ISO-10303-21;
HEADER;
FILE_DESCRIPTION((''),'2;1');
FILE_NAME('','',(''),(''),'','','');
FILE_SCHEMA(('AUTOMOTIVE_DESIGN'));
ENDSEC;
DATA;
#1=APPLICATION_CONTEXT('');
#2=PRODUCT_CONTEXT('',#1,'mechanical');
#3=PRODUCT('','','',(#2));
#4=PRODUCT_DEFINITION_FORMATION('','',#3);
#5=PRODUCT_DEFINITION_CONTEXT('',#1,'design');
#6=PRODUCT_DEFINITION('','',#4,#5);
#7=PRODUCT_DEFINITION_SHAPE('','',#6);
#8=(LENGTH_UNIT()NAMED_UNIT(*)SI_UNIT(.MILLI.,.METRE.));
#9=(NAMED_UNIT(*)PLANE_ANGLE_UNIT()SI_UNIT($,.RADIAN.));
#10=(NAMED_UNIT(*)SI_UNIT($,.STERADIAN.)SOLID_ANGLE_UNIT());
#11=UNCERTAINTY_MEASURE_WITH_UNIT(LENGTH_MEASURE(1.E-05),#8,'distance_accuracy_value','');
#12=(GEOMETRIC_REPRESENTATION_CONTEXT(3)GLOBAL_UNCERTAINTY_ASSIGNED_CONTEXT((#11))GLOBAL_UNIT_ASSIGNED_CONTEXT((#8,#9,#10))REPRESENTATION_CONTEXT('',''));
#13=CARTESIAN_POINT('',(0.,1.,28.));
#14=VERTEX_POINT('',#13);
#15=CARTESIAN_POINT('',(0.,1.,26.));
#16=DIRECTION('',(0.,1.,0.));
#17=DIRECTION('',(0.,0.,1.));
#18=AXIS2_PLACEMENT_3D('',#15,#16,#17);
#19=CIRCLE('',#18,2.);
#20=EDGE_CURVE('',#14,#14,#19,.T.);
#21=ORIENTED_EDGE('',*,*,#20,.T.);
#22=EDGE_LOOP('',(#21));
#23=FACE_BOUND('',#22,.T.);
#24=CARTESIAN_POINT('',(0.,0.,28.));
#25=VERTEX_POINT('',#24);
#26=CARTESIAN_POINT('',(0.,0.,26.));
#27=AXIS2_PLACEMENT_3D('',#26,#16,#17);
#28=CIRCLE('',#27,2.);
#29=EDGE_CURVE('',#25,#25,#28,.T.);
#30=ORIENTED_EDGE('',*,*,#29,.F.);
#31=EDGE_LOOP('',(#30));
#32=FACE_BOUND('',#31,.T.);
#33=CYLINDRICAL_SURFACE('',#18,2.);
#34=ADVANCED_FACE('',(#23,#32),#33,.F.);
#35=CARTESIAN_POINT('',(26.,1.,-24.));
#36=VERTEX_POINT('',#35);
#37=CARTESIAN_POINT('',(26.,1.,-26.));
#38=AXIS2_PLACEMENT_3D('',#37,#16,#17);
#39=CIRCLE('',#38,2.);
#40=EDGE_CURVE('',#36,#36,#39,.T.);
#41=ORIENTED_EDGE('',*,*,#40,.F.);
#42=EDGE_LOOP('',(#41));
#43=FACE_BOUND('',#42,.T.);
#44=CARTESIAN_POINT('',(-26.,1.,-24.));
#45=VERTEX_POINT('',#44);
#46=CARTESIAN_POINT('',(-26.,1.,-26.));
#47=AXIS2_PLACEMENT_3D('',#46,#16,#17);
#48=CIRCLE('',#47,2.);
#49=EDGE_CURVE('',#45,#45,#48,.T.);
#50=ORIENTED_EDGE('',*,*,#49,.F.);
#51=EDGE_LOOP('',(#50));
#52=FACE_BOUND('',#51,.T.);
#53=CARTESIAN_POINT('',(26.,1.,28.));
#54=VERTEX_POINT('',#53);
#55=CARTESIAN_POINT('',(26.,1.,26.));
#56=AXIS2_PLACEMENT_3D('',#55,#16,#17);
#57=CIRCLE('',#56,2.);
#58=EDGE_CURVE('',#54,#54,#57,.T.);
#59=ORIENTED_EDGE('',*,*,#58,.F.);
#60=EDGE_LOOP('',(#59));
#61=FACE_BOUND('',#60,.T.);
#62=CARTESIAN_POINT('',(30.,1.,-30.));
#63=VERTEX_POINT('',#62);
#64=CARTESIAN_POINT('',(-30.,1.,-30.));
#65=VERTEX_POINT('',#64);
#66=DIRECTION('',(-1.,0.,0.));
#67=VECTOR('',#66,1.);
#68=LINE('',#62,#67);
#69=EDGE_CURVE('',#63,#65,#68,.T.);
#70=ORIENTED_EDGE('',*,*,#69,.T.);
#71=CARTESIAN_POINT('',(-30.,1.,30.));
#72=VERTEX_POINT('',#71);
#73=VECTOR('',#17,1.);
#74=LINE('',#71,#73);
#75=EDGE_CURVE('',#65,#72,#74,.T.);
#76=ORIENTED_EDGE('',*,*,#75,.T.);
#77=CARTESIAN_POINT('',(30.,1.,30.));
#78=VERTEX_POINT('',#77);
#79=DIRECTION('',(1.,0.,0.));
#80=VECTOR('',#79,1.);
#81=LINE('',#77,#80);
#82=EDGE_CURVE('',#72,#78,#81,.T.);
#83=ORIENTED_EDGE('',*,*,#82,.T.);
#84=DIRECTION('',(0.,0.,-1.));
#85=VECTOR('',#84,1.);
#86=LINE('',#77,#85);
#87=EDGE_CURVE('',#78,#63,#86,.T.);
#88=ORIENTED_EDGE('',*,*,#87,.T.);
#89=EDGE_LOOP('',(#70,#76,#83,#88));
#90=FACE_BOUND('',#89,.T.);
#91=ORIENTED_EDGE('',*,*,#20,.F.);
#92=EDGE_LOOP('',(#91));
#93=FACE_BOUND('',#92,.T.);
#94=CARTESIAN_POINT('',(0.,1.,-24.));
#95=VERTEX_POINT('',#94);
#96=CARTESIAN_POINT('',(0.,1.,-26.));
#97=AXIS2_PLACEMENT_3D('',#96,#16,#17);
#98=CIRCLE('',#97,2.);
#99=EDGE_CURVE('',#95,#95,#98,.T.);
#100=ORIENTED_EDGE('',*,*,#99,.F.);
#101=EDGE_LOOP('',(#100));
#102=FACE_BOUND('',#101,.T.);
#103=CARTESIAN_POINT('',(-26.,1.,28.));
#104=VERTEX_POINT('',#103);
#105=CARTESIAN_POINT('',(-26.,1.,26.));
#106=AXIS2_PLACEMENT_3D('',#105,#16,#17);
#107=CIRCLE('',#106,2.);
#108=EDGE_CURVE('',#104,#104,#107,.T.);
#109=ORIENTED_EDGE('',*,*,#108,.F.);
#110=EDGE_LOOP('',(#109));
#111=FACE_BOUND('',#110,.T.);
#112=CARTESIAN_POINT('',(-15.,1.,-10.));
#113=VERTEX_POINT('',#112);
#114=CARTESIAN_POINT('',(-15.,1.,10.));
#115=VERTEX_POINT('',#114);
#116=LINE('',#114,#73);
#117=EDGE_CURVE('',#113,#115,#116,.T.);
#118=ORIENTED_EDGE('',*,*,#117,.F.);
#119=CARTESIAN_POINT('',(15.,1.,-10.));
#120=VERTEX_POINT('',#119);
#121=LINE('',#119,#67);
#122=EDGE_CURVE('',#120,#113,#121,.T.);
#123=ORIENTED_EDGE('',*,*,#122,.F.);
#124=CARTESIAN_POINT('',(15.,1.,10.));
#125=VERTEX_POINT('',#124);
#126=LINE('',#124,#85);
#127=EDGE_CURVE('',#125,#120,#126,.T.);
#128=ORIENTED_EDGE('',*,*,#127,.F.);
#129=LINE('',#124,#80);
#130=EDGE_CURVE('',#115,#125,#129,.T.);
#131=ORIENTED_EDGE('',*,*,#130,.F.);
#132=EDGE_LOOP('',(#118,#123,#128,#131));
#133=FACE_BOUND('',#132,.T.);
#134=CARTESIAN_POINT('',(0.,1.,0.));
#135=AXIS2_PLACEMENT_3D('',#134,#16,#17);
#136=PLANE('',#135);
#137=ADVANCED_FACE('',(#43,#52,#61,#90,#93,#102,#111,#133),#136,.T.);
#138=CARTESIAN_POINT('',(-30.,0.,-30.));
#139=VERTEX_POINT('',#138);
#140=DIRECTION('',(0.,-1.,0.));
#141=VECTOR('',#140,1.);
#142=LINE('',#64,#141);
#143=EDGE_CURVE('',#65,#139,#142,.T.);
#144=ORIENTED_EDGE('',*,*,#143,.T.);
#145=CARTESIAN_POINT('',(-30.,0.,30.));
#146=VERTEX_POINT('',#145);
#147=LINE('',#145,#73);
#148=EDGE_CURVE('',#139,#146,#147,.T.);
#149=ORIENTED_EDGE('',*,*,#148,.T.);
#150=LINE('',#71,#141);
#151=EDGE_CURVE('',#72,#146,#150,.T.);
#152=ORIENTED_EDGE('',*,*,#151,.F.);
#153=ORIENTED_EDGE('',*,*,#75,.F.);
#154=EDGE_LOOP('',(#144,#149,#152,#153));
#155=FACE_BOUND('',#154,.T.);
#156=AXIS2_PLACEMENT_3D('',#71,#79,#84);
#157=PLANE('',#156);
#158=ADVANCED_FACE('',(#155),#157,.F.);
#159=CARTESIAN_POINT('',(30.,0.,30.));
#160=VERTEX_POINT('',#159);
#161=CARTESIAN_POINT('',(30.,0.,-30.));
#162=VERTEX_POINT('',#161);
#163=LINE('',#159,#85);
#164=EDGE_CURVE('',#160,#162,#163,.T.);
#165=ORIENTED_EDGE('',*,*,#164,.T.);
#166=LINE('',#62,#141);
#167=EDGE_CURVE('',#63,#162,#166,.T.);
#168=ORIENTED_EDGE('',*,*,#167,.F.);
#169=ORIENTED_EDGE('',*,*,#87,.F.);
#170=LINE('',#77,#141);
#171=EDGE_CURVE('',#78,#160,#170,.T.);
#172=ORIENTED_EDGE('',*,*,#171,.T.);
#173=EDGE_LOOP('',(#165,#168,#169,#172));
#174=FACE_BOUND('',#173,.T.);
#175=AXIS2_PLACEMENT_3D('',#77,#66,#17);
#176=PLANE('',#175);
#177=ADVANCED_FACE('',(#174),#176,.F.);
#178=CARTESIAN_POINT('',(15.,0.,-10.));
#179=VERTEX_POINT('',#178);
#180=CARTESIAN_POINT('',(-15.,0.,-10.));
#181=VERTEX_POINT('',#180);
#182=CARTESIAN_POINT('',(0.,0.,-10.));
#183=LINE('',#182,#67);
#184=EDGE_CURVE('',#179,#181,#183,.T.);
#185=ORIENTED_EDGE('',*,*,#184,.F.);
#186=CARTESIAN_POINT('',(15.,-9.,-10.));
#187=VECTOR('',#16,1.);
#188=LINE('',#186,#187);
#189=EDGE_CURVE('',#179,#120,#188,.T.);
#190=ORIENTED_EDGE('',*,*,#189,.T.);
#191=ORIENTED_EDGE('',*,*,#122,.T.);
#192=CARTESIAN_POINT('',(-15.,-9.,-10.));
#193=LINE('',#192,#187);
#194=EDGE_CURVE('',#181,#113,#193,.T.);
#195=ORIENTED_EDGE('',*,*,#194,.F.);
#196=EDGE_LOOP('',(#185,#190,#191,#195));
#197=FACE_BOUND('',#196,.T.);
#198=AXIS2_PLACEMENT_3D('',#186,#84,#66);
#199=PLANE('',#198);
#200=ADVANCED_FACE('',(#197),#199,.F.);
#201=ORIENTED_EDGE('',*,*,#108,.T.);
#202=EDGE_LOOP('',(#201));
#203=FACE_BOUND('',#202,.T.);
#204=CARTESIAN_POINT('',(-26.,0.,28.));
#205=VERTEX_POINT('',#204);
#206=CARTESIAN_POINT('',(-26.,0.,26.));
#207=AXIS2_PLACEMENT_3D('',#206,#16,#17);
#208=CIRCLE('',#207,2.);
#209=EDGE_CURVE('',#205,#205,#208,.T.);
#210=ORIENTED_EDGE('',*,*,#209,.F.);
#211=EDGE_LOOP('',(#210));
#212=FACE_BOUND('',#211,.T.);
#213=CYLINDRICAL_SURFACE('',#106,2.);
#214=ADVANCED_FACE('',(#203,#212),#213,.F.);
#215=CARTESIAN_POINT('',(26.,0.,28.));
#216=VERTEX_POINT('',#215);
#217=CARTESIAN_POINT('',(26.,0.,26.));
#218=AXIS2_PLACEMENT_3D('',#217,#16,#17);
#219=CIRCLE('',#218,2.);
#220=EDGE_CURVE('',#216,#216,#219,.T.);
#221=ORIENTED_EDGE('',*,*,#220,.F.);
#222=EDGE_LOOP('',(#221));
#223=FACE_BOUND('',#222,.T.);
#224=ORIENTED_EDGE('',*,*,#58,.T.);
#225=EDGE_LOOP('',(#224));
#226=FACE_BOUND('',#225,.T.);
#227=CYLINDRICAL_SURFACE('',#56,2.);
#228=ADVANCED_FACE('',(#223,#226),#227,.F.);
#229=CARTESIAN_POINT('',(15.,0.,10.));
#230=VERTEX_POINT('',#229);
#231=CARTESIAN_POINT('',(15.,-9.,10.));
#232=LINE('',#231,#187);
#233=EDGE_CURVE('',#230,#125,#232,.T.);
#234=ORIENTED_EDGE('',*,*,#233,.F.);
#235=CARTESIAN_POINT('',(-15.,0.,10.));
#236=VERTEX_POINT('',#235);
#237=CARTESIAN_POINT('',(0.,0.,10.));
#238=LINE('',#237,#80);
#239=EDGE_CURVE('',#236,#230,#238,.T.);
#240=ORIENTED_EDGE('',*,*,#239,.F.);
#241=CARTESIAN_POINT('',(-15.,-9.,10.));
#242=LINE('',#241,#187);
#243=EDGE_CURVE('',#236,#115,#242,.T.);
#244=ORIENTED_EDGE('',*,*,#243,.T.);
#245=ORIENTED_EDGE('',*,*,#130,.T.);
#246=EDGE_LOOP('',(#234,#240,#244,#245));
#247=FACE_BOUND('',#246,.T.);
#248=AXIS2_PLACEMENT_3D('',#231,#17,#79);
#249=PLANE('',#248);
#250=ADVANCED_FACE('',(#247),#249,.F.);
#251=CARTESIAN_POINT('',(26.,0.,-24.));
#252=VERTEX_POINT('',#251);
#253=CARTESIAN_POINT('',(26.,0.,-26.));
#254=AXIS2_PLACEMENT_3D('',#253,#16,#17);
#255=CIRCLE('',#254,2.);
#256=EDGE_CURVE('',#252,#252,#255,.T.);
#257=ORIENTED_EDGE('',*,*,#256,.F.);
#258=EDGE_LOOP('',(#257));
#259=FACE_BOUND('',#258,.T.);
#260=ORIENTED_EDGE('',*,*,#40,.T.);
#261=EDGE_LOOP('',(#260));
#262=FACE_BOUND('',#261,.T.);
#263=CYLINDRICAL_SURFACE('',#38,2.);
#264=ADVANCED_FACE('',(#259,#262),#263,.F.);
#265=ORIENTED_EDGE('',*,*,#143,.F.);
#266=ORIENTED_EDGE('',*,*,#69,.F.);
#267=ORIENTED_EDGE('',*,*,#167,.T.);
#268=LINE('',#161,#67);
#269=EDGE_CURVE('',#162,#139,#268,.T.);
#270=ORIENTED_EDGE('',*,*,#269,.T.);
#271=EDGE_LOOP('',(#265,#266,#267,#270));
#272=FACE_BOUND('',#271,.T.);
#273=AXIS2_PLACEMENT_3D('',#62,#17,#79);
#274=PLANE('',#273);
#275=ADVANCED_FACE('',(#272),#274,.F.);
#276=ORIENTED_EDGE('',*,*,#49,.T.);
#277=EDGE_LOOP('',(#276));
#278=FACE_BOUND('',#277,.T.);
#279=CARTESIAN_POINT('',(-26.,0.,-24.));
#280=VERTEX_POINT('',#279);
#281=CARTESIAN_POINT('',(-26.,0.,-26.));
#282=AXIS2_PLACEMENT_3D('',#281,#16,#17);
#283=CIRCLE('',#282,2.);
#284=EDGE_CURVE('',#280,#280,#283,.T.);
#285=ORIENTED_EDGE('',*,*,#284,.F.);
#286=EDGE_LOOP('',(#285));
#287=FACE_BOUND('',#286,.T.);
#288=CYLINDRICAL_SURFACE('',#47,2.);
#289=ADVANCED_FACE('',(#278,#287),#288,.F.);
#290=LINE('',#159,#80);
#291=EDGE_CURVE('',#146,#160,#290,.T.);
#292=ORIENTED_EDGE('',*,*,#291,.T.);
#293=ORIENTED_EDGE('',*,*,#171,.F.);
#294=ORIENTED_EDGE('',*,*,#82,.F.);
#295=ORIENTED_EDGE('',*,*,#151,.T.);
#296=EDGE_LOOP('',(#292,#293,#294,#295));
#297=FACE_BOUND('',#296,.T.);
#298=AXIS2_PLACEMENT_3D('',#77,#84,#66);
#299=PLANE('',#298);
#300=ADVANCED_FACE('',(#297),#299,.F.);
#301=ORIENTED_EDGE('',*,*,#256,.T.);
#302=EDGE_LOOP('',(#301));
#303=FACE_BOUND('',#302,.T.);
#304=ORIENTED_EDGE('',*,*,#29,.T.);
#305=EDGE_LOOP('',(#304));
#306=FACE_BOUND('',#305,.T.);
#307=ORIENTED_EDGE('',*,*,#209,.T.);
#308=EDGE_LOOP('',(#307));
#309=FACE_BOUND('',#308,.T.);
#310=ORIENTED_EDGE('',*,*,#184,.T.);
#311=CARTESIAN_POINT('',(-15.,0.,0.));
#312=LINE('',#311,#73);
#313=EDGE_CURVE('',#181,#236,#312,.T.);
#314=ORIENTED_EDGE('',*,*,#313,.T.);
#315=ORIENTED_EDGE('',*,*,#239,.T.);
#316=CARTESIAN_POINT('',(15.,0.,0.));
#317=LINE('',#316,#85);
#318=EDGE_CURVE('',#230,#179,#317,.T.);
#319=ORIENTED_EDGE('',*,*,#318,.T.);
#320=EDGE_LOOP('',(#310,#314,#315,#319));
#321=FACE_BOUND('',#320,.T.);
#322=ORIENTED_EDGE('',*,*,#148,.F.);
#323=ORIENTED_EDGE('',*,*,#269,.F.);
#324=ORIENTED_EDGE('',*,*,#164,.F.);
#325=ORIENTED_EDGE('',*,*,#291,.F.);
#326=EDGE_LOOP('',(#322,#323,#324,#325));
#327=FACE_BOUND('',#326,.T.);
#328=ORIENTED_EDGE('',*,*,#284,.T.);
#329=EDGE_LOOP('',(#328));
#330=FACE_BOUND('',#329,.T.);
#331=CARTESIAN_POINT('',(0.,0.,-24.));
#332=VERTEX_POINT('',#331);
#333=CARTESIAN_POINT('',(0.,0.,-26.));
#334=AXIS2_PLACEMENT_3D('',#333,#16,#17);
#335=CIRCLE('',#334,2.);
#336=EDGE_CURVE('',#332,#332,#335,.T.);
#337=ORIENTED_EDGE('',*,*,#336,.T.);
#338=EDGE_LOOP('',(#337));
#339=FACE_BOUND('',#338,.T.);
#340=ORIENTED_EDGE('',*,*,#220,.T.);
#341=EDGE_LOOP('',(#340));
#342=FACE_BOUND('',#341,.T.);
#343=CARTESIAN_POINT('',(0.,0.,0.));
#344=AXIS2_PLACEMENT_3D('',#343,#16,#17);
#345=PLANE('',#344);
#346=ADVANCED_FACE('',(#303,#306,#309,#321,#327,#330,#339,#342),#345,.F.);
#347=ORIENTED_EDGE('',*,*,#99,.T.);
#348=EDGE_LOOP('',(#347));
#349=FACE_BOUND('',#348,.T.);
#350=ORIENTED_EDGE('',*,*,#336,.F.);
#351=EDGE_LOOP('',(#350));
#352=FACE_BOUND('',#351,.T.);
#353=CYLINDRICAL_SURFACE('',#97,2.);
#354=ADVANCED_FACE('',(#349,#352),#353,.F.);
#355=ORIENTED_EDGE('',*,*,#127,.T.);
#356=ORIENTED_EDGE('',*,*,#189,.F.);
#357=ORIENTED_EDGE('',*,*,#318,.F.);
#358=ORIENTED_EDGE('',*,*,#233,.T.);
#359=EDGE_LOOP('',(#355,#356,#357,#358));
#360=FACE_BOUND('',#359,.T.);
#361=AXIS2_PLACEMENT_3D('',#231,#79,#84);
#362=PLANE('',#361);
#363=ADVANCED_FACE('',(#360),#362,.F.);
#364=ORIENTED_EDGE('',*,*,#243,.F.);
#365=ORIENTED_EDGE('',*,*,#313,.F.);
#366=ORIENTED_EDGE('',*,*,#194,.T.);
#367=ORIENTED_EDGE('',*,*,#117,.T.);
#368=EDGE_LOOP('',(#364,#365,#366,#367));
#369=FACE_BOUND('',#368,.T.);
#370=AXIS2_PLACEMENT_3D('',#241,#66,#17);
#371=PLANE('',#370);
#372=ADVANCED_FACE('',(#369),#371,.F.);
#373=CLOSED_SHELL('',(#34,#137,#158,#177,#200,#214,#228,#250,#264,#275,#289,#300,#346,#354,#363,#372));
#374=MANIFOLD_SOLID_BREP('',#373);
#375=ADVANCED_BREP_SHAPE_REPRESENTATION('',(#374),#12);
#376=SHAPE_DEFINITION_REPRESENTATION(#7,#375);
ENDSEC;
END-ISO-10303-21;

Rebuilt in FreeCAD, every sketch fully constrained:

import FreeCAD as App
import Part
import Sketcher


def add_polygon(sketch, points):
    """Adds a closed chain of lines whose ends are joined by coincident constraints."""
    first, n = sketch.GeometryCount, len(points)
    for a, b in zip(points, points[1:] + points[:1]):
        sketch.addGeometry(Part.LineSegment(App.Vector(*a, 0), App.Vector(*b, 0)), False)
    for i in range(n):
        sketch.addConstraint(Sketcher.Constraint("Coincident", first + i, 2, first + (i + 1) % n, 1))

doc = App.newDocument("Part")
params = doc.addObject("Spreadsheet::Sheet", "Params")
for row, (alias, value) in enumerate([
    ("sketch1_width", "60 mm"),
    ("pad1_length", "1 mm"),
    ("sketch2_diameter", "4 mm"),
    ("hole_diameter", "4 mm"),
    ("hole_depth", "1 mm"),
    ("sketch3_width", "30 mm"),
    ("sketch3_height", "20 mm"),
    ("pocket1_length", "10 mm"),
], start=1):
    params.set(f"A{row}", alias)
    params.set(f"B{row}", "=" + value)
    params.setAlias(f"B{row}", alias)

body = doc.addObject("PartDesign::Body", "Body")

# Sketch on XZ plane
sketch1 = doc.addObject("Sketcher::SketchObject", "Sketch")
body.addObject(sketch1)
sketch1.AttachmentSupport = (doc.XZ_Plane, [""])
sketch1.MapMode = "FlatFace"
add_polygon(sketch1, [(-30, -30), (-30, 30), (30, 30), (30, -30)])  # lines 0-3
sketch1.addConstraint([
    Sketcher.Constraint("Vertical", 0),
    Sketcher.Constraint("Horizontal", 1),
    Sketcher.Constraint("Vertical", 2),
    Sketcher.Constraint("Horizontal", 3),
    Sketcher.Constraint("Symmetric", 0, 2, 2, 2, -1, 1),
    Sketcher.Constraint("Equal", 3, 0),
    Sketcher.Constraint("DistanceX", 1, 1, 1, 2, 60.0),
])
sketch1.setExpression("Constraints[10]", "Params.sketch1_width")
pad1 = doc.addObject("PartDesign::Pad", "Pad")
body.addObject(pad1)
pad1.Profile = sketch1
pad1.setExpression("Length", "Params.pad1_length")
pad1.Reversed = True

# Sketch on XZ plane
sketch2 = doc.addObject("Sketcher::SketchObject", "Sketch001")
body.addObject(sketch2)
sketch2.AttachmentSupport = (doc.XZ_Plane, [""])
sketch2.MapMode = "FlatFace"
sketch2.AttachmentOffset = App.Placement(App.Vector(0, 0, -1), App.Rotation())
sketch2.addGeometry([
    Part.Circle(App.Vector(26, -26, 0), App.Vector(0, 0, 1), 2),  # 0
    Part.Circle(App.Vector(0, -26, 0), App.Vector(0, 0, 1), 2),  # 1
    Part.Circle(App.Vector(-26, -26, 0), App.Vector(0, 0, 1), 2),  # 2
    Part.Circle(App.Vector(0, 26, 0), App.Vector(0, 0, 1), 2),  # 3
    Part.Circle(App.Vector(26, 26, 0), App.Vector(0, 0, 1), 2),  # 4
    Part.Circle(App.Vector(-26, 26, 0), App.Vector(0, 0, 1), 2),  # 5
], False)
sketch2.addConstraint([
    Sketcher.Constraint("Equal", 0, 1),
    Sketcher.Constraint("Equal", 1, 2),
    Sketcher.Constraint("Equal", 2, 3),
    Sketcher.Constraint("Equal", 3, 4),
    Sketcher.Constraint("Equal", 4, 5),
    Sketcher.Constraint("Symmetric", 1, 3, 3, 3, -1, 1),
    Sketcher.Constraint("Symmetric", 2, 3, 4, 3, -1, 1),
    Sketcher.Constraint("Symmetric", 0, 3, 5, 3, -1, 1),
    Sketcher.Constraint("Symmetric", 0, 3, 2, 3, -2),
    Sketcher.Constraint("PointOnObject", 1, 3, -2),
    Sketcher.Constraint("Horizontal", 0, 3, 1, 3),
    Sketcher.Constraint("Diameter", 0, 4.0),
    Sketcher.Constraint("DistanceX", -1, 1, 0, 3, 26.0),
    Sketcher.Constraint("DistanceY", 0, 3, -1, 1, 26.0),
])
sketch2.setExpression("Constraints[11]", "Params.sketch2_diameter")
doc.recompute()
hole = doc.addObject("PartDesign::Hole", "Hole")
body.addObject(hole)
hole.Profile = sketch2
hole.ThreadType = "None"
hole.setExpression("Diameter", "Params.hole_diameter")
hole.DepthType = "Dimension"
hole.setExpression("Depth", "Params.hole_depth")
hole.DrillPoint = "Flat"
hole.Reversed = True

# Sketch on XZ plane
sketch3 = doc.addObject("Sketcher::SketchObject", "Sketch002")
body.addObject(sketch3)
sketch3.AttachmentSupport = (doc.XZ_Plane, [""])
sketch3.MapMode = "FlatFace"
sketch3.AttachmentOffset = App.Placement(App.Vector(0, 0, -1), App.Rotation())
add_polygon(sketch3, [(-15, -10), (-15, 10), (15, 10), (15, -10)])  # lines 0-3
sketch3.addConstraint([
    Sketcher.Constraint("Vertical", 0),
    Sketcher.Constraint("Horizontal", 1),
    Sketcher.Constraint("Vertical", 2),
    Sketcher.Constraint("Horizontal", 3),
    Sketcher.Constraint("Symmetric", 0, 2, 2, 2, -1, 1),
    Sketcher.Constraint("DistanceX", 1, 1, 1, 2, 30.0),
    Sketcher.Constraint("DistanceY", 0, 1, 0, 2, 20.0),
])
sketch3.setExpression("Constraints[9]", "Params.sketch3_width")
sketch3.setExpression("Constraints[10]", "Params.sketch3_height")
pocket1 = doc.addObject("PartDesign::Pocket", "Pocket")
body.addObject(pocket1)
pocket1.Profile = sketch3
pocket1.setExpression("Length", "Params.pocket1_length")
pocket1.Reversed = True

doc.recompute()
